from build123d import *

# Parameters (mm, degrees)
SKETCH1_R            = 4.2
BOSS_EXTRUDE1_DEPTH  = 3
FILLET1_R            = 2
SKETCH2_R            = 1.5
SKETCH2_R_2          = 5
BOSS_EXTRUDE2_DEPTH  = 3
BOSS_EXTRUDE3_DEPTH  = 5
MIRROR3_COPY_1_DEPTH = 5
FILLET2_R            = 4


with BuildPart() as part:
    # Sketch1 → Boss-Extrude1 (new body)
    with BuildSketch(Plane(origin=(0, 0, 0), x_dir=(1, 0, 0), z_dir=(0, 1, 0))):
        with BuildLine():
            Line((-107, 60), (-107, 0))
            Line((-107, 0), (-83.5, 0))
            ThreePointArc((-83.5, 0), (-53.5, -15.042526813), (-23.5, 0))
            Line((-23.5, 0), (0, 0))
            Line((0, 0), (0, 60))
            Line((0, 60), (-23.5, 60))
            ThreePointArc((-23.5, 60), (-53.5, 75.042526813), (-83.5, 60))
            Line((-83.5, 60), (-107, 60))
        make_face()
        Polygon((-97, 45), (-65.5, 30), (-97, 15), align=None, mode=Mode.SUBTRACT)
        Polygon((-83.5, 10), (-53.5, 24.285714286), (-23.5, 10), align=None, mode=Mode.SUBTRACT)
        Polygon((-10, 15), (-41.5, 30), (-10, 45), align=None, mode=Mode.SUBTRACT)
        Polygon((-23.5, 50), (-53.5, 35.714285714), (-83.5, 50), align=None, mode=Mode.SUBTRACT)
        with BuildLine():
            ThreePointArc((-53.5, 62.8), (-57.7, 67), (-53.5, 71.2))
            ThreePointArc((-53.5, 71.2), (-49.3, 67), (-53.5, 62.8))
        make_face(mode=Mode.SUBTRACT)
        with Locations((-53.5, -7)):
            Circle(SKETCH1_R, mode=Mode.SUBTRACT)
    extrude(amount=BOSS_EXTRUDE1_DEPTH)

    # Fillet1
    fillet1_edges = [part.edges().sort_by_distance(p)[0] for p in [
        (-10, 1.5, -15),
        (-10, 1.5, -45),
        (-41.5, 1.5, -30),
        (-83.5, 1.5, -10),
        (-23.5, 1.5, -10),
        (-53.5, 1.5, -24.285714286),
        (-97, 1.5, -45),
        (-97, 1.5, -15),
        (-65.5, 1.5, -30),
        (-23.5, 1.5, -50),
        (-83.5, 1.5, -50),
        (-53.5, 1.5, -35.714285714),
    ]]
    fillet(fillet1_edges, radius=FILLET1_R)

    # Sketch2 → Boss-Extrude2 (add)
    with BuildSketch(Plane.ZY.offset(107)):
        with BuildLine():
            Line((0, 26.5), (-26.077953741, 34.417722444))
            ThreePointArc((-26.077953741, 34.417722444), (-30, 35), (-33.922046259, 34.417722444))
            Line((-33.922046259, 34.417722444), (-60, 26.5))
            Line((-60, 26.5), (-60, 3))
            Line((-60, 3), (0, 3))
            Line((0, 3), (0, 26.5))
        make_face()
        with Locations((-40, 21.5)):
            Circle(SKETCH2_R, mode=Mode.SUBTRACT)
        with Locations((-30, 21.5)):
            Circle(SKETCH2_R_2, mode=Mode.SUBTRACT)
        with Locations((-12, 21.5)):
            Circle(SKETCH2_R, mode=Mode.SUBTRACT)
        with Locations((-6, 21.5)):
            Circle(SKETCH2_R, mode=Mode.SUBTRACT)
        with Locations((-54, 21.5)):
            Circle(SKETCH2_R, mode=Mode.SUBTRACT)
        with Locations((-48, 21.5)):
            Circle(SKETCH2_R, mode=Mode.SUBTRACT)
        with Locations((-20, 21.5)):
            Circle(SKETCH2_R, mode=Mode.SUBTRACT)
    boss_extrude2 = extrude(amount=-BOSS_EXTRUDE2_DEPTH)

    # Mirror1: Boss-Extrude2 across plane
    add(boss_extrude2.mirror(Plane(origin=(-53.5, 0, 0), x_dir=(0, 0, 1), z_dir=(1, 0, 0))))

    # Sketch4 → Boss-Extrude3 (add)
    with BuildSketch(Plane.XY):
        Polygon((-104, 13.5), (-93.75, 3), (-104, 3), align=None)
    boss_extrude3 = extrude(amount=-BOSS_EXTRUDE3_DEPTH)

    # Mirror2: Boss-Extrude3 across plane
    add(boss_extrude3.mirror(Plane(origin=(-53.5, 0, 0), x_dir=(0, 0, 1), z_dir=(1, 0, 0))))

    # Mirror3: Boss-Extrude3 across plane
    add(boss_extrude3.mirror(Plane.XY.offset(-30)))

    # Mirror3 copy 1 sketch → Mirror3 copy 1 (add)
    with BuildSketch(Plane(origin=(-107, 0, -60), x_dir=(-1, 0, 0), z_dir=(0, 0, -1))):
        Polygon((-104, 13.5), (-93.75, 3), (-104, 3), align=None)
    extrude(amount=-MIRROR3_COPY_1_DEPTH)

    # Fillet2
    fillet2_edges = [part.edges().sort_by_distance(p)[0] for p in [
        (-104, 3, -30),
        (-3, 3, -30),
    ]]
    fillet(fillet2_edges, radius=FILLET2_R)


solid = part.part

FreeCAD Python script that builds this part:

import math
import FreeCAD as App
import Part
import Sketcher
from FreeCAD import Vector


def edges_at(feature, points):
    """Names of the edges that pass closest to the given points."""
    edges = feature.Shape.Edges
    near = lambda p: min(range(len(edges)), key=lambda i: edges[i].distToShape(Part.Vertex(*p))[0])
    return sorted({f"Edge{near(p) + 1}" for p in points})


def add_polygon(sketch, points):
    """Adds a closed chain of lines whose ends are joined by coincident constraints."""
    first, n = sketch.GeometryCount, len(points)
    for a, b in zip(points, points[1:] + points[:1]):
        sketch.addGeometry(Part.LineSegment(App.Vector(*a, 0), App.Vector(*b, 0)), False)
    for i in range(n):
        sketch.addConstraint(Sketcher.Constraint("Coincident", first + i, 2, first + (i + 1) % n, 1))

doc = App.newDocument("Part")
body = doc.addObject("PartDesign::Body", "Body")

# Sketch on XZ plane
sketch1 = doc.addObject("Sketcher::SketchObject", "Sketch")
body.addObject(sketch1)
sketch1.AttachmentSupport = (doc.XZ_Plane, [""])
sketch1.MapMode = "FlatFace"
sketch1.addGeometry(Part.LineSegment(Vector(-107, -60, 0), Vector(-107, 0, 0)), False)  # 0
sketch1.addGeometry(Part.LineSegment(Vector(-107, 0, 0), Vector(-83.5, 0, 0)), False)  # 1
sketch1.addGeometry(Part.ArcOfCircle(Part.Circle(Vector(-53.5, -22.4, 0), Vector(0, 0, 1), 37.4), math.radians(37), math.radians(143)), False)  # 2
sketch1.addGeometry(Part.LineSegment(Vector(-23.5, 0, 0), Vector(0, 0, 0)), False)  # 3
sketch1.addGeometry(Part.LineSegment(Vector(0, 0, 0), Vector(0, -60, 0)), False)  # 4
sketch1.addGeometry(Part.LineSegment(Vector(0, -60, 0), Vector(-23.5, -60, 0)), False)  # 5
sketch1.addGeometry(Part.ArcOfCircle(Part.Circle(Vector(-53.5, -37.6, 0), Vector(0, 0, 1), 37.4), math.radians(-143), math.radians(-37)), False)  # 6
sketch1.addGeometry(Part.LineSegment(Vector(-83.5, -60, 0), Vector(-107, -60, 0)), False)  # 7
sketch1.addGeometry(Part.Circle(Vector(-53.5, 7, 0), Vector(0, 0, 1), 4.2), False)  # 8
add_polygon(sketch1, [(-23.5, -10), (-83.5, -10), (-53.5, -24.3)])  # lines 9-11
add_polygon(sketch1, [(-97, -15), (-97, -45), (-65.5, -30)])  # lines 12-14
add_polygon(sketch1, [(-83.5, -50), (-23.5, -50), (-53.5, -35.7)])  # lines 15-17
add_polygon(sketch1, [(-10, -45), (-10, -15), (-41.5, -30)])  # lines 18-20
sketch1.addGeometry(Part.Circle(Vector(-53.5, -67, 0), Vector(0, 0, 1), 4.2), False)  # 21
sketch1.addConstraint(Sketcher.Constraint("Coincident", 0, 2, 1, 1))
sketch1.addConstraint(Sketcher.Constraint("Coincident", 1, 2, 2, 2))
sketch1.addConstraint(Sketcher.Constraint("Coincident", 2, 1, 3, 1))
sketch1.addConstraint(Sketcher.Constraint("Coincident", 3, 2, 4, 1))
sketch1.addConstraint(Sketcher.Constraint("Coincident", 4, 2, 5, 1))
sketch1.addConstraint(Sketcher.Constraint("Coincident", 5, 2, 6, 2))
sketch1.addConstraint(Sketcher.Constraint("Coincident", 6, 1, 7, 1))
sketch1.addConstraint(Sketcher.Constraint("Coincident", 7, 2, 0, 1))
sketch1.addConstraint(Sketcher.Constraint("Vertical", 0))
sketch1.addConstraint(Sketcher.Constraint("Horizontal", 1))
sketch1.addConstraint(Sketcher.Constraint("Horizontal", 3))
sketch1.addConstraint(Sketcher.Constraint("Vertical", 4))
sketch1.addConstraint(Sketcher.Constraint("Horizontal", 5))
sketch1.addConstraint(Sketcher.Constraint("Horizontal", 7))
sketch1.addConstraint(Sketcher.Constraint("Horizontal", 9))
sketch1.addConstraint(Sketcher.Constraint("Vertical", 12))
sketch1.addConstraint(Sketcher.Constraint("Horizontal", 15))
sketch1.addConstraint(Sketcher.Constraint("Vertical", 18))
sketch1.addConstraint(Sketcher.Constraint("Coincident", 3, 2, -1, 1))
sketch1.addConstraint(Sketcher.Constraint("Equal", 2, 6))
sketch1.addConstraint(Sketcher.Constraint("Equal", 8, 21))
sketch1.addConstraint(Sketcher.Constraint("PointOnObject", 0, 2, -1))
sketch1.addConstraint(Sketcher.Constraint("Parallel", 11, 13))
sketch1.addConstraint(Sketcher.Constraint("Parallel", 10, 14))
sketch1.addConstraint(Sketcher.Constraint("Parallel", 14, 16))
sketch1.addConstraint(Sketcher.Constraint("Parallel", 13, 17))
sketch1.addConstraint(Sketcher.Constraint("Parallel", 17, 19))
sketch1.addConstraint(Sketcher.Constraint("Parallel", 16, 20))
sketch1.addConstraint(Sketcher.Constraint("Horizontal", 5, 2, 6, 1))
sketch1.addConstraint(Sketcher.Constraint("Horizontal", 14, 2, 18, 2))
sketch1.addConstraint(Sketcher.Constraint("Horizontal", 13, 2, 19, 2))
sketch1.addConstraint(Sketcher.Constraint("Horizontal", 12, 2, 20, 2))
sketch1.addConstraint(Sketcher.Constraint("Vertical", 2, 3, 6, 3))
sketch1.addConstraint(Sketcher.Constraint("Vertical", 6, 3, 8, 3))
sketch1.addConstraint(Sketcher.Constraint("Vertical", 8, 3, 21, 3))
sketch1.addConstraint(Sketcher.Constraint("Vertical", 2, 1, 5, 2))
sketch1.addConstraint(Sketcher.Constraint("Vertical", 6, 1, 9, 2))
sketch1.addConstraint(Sketcher.Constraint("Vertical", 21, 3, 10, 2))
sketch1.addConstraint(Sketcher.Constraint("Vertical", 11, 2, 15, 2))
sketch1.addConstraint(Sketcher.Constraint("Vertical", 10, 2, 16, 2))
sketch1.addConstraint(Sketcher.Constraint("Equal", 1, 3))
sketch1.addConstraint(Sketcher.Constraint("Equal", 15, 0))
sketch1.addConstraint(Sketcher.Constraint("Diameter", 8, 8.4))
sketch1.addConstraint(Sketcher.Constraint("DistanceX", 9, 2, 9, 1, 60.0))
sketch1.addConstraint(Sketcher.Constraint("DistanceY", 12, 2, 12, 1, 30.0))
sketch1.addConstraint(Sketcher.Constraint("DistanceX", 1, 1, 1, 2, 23.5))
sketch1.addConstraint(Sketcher.Constraint("DistanceY", -1, 1, 8, 3, 7.0))
sketch1.addConstraint(Sketcher.Constraint("DistanceY", 21, 3, -1, 1, 67.0))
sketch1.addConstraint(Sketcher.Constraint("DistanceY", 9, 2, -1, 1, 10.0))
sketch1.addConstraint(Sketcher.Constraint("DistanceX", 12, 2, -1, 1, 97.0))
sketch1.addConstraint(Sketcher.Constraint("DistanceY", 12, 2, -1, 1, 45.0))
sketch1.addConstraint(Sketcher.Constraint("DistanceY", 15, 2, -1, 1, 50.0))
sketch1.addConstraint(Sketcher.Constraint("DistanceX", 18, 2, -1, 1, 10.0))
sketch1.addConstraint(Sketcher.Constraint("DistanceX", 13, 2, 10, 2, 12.0))
sketch1.addConstraint(Sketcher.Constraint("Radius", 2, 37.43645))
pad1 = doc.addObject("PartDesign::Pad", "Pad")
body.addObject(pad1)
pad1.Profile = sketch1
pad1.Length = 3
pad1.Reversed = True
doc.recompute()

fillet = doc.addObject("PartDesign::Fillet", "Fillet")
body.addObject(fillet)
fillet.Base = (pad1, edges_at(pad1, [
    (-10, 1.5, -15),
    (-10, 1.5, -45),
    (-41.5, 1.5, -30),
    (-83.5, 1.5, -10),
    (-23.5, 1.5, -10),
    (-53.5, 1.5, -24.286),
    (-97, 1.5, -45),
    (-97, 1.5, -15),
    (-65.5, 1.5, -30),
    (-23.5, 1.5, -50),
    (-83.5, 1.5, -50),
    (-53.5, 1.5, -35.714),
]))
fillet.Radius = 2

# Sketch on YZ plane
sketch2 = doc.addObject("Sketcher::SketchObject", "Sketch001")
body.addObject(sketch2)
sketch2.AttachmentSupport = (doc.YZ_Plane, [""])
sketch2.MapMode = "FlatFace"
sketch2.AttachmentOffset = App.Placement(Vector(0, 0, -107), App.Rotation())
sketch2.addGeometry(Part.LineSegment(Vector(26.5, 0, 0), Vector(34.4, -26.1, 0)), False)
sketch2.addGeometry(Part.ArcOfCircle(Part.Circle(Vector(21.5, -30, 0), Vector(0, 0, 1), 13.5), math.radians(-17), math.radians(17)), False)
sketch2.addGeometry(Part.LineSegment(Vector(34.4, -33.9, 0), Vector(26.5, -60, 0)), False)
sketch2.addGeometry(Part.LineSegment(Vector(26.5, -60, 0), Vector(3, -60, 0)), False)
sketch2.addGeometry(Part.LineSegment(Vector(3, -60, 0), Vector(3, 0, 0)), False)
sketch2.addGeometry(Part.LineSegment(Vector(3, 0, 0), Vector(26.5, 0, 0)), False)
sketch2.addGeometry(Part.Circle(Vector(21.5, -54, 0), Vector(0, 0, 1), 1.5), False)
sketch2.addGeometry(Part.Circle(Vector(21.5, -48, 0), Vector(0, 0, 1), 1.5), False)
sketch2.addGeometry(Part.Circle(Vector(21.5, -40, 0), Vector(0, 0, 1), 1.5), False)
sketch2.addGeometry(Part.Circle(Vector(21.5, -30, 0), Vector(0, 0, 1), 5), False)
sketch2.addGeometry(Part.Circle(Vector(21.5, -20, 0), Vector(0, 0, 1), 1.5), False)
sketch2.addGeometry(Part.Circle(Vector(21.5, -12, 0), Vector(0, 0, 1), 1.5), False)
sketch2.addGeometry(Part.Circle(Vector(21.5, -6, 0), Vector(0, 0, 1), 1.5), False)
sketch2.addConstraint(Sketcher.Constraint("Tangent", 0, 2, 1, 2))
sketch2.addConstraint(Sketcher.Constraint("Tangent", 1, 1, 2, 1))
sketch2.addConstraint(Sketcher.Constraint("Coincident", 2, 2, 3, 1))
sketch2.addConstraint(Sketcher.Constraint("Coincident", 3, 2, 4, 1))
sketch2.addConstraint(Sketcher.Constraint("Coincident", 4, 2, 5, 1))
sketch2.addConstraint(Sketcher.Constraint("Coincident", 5, 2, 0, 1))
sketch2.addConstraint(Sketcher.Constraint("Horizontal", 3))
sketch2.addConstraint(Sketcher.Constraint("Vertical", 4))
sketch2.addConstraint(Sketcher.Constraint("Horizontal", 5))
sketch2.addConstraint(Sketcher.Constraint("Coincident", 9, 3, 1, 3))
sketch2.addConstraint(Sketcher.Constraint("Equal", 6, 7))
sketch2.addConstraint(Sketcher.Constraint("Equal", 7, 8))
sketch2.addConstraint(Sketcher.Constraint("Equal", 8, 10))
sketch2.addConstraint(Sketcher.Constraint("Equal", 10, 11))
sketch2.addConstraint(Sketcher.Constraint("Equal", 11, 12))
sketch2.addConstraint(Sketcher.Constraint("PointOnObject", 4, 2, -1))
sketch2.addConstraint(Sketcher.Constraint("Vertical", 1, 3, 6, 3))
sketch2.addConstraint(Sketcher.Constraint("Vertical", 6, 3, 7, 3))
sketch2.addConstraint(Sketcher.Constraint("Vertical", 7, 3, 8, 3))
sketch2.addConstraint(Sketcher.Constraint("Vertical", 9, 3, 10, 3))
sketch2.addConstraint(Sketcher.Constraint("Vertical", 10, 3, 11, 3))
sketch2.addConstraint(Sketcher.Constraint("Vertical", 11, 3, 12, 3))
sketch2.addConstraint(Sketcher.Constraint("Vertical", 0, 2, 1, 1))
sketch2.addConstraint(Sketcher.Constraint("Vertical", 2, 2, 5, 2))
sketch2.addConstraint(Sketcher.Constraint("Diameter", 6, 3.0))
sketch2.addConstraint(Sketcher.Constraint("Diameter", 9, 10.0))
sketch2.addConstraint(Sketcher.Constraint("Radius", 1, 13.5))
sketch2.addConstraint(Sketcher.Constraint("DistanceY", 4, 1, 4, 2, 60.0))
sketch2.addConstraint(Sketcher.Constraint("DistanceX", 3, 2, 3, 1, 23.5))
sketch2.addConstraint(Sketcher.Constraint("DistanceY", 6, 3, -1, 1, 54.0))
sketch2.addConstraint(Sketcher.Constraint("DistanceY", 7, 3, -1, 1, 48.0))
sketch2.addConstraint(Sketcher.Constraint("DistanceY", 8, 3, -1, 1, 40.0))
sketch2.addConstraint(Sketcher.Constraint("DistanceY", 10, 3, -1, 1, 20.0))
sketch2.addConstraint(Sketcher.Constraint("DistanceY", 11, 3, -1, 1, 12.0))
sketch2.addConstraint(Sketcher.Constraint("DistanceY", 12, 3, -1, 1, 6.0))
sketch2.addConstraint(Sketcher.Constraint("DistanceX", -1, 1, 3, 2, 3.0))
sketch2.addConstraint(Sketcher.Constraint("DistanceX", 6, 3, 2, 2, 5.0))
pad2 = doc.addObject("PartDesign::Pad", "Pad001")
body.addObject(pad2)
pad2.Profile = sketch2
pad2.Length = 3
doc.recompute()

datumplane = doc.addObject("PartDesign::Plane", "DatumPlane")
body.addObject(datumplane)
datumplane.AttachmentSupport = (doc.YZ_Plane, [""])
datumplane.MapMode = "FlatFace"
datumplane.AttachmentOffset = App.Placement(Vector(0, 0, -53.5), App.Rotation())
mirrored = doc.addObject("PartDesign::Mirrored", "Mirrored")
body.addObject(mirrored)
mirrored.Originals = [pad2]
mirrored.MirrorPlane = (datumplane, [""])
body.Tip = mirrored

# Sketch on XY plane
sketch3 = doc.addObject("Sketcher::SketchObject", "Sketch002")
body.addObject(sketch3)
sketch3.AttachmentSupport = (doc.XY_Plane, [""])
sketch3.MapMode = "FlatFace"
add_polygon(sketch3, [(-94, 3), (-104, 14), (-104, 3)])  # lines 0-2
sketch3.addConstraint(Sketcher.Constraint("Vertical", 1))
sketch3.addConstraint(Sketcher.Constraint("Horizontal", 2))
sketch3.addConstraint(Sketcher.Constraint("DistanceY", 1, 2, 1, 1, 10.5))
sketch3.addConstraint(Sketcher.Constraint("DistanceX", 0, 2, -1, 1, 104.0))
sketch3.addConstraint(Sketcher.Constraint("DistanceY", -1, 1, 1, 2, 3.0))
sketch3.addConstraint(Sketcher.Constraint("DistanceX", 2, 1, 2, 2, 10.25))
pad3 = doc.addObject("PartDesign::Pad", "Pad002")
body.addObject(pad3)
pad3.Profile = sketch3
pad3.Length = 5
pad3.Reversed = True
doc.recompute()

datumplane2 = doc.addObject("PartDesign::Plane", "DatumPlane001")
body.addObject(datumplane2)
datumplane2.AttachmentSupport = (doc.YZ_Plane, [""])
datumplane2.MapMode = "FlatFace"
datumplane2.AttachmentOffset = App.Placement(Vector(0, 0, -53.5), App.Rotation())
mirrored2 = doc.addObject("PartDesign::Mirrored", "Mirrored001")
body.addObject(mirrored2)
mirrored2.Originals = [pad3]
mirrored2.MirrorPlane = (datumplane2, [""])
body.Tip = mirrored2
doc.recompute()

datumplane3 = doc.addObject("PartDesign::Plane", "DatumPlane002")
body.addObject(datumplane3)
datumplane3.AttachmentSupport = (doc.XY_Plane, [""])
datumplane3.MapMode = "FlatFace"
datumplane3.AttachmentOffset = App.Placement(Vector(0, 0, -30), App.Rotation())
mirrored3 = doc.addObject("PartDesign::Mirrored", "Mirrored002")
body.addObject(mirrored3)
mirrored3.Originals = [pad3]
mirrored3.MirrorPlane = (datumplane3, [""])
body.Tip = mirrored3

# Sketch on XY plane
sketch4 = doc.addObject("Sketcher::SketchObject", "Sketch003")
body.addObject(sketch4)
sketch4.AttachmentSupport = (doc.XY_Plane, [""])
sketch4.MapMode = "FlatFace"
sketch4.AttachmentOffset = App.Placement(Vector(0, 0, -60), App.Rotation())
add_polygon(sketch4, [(-13, 3), (-3, 14), (-3, 3)])  # lines 0-2
sketch4.addConstraint(Sketcher.Constraint("Vertical", 1))
sketch4.addConstraint(Sketcher.Constraint("Horizontal", 2))
sketch4.addConstraint(Sketcher.Constraint("DistanceY", 1, 2, 1, 1, 10.5))
sketch4.addConstraint(Sketcher.Constraint("DistanceX", 0, 2, -1, 1, 3.0))
sketch4.addConstraint(Sketcher.Constraint("DistanceY", -1, 1, 1, 2, 3.0))
sketch4.addConstraint(Sketcher.Constraint("DistanceX", 2, 2, 2, 1, 10.25))
pad4 = doc.addObject("PartDesign::Pad", "Pad003")
body.addObject(pad4)
pad4.Profile = sketch4
pad4.Length = 5
doc.recompute()

fillet2 = doc.addObject("PartDesign::Fillet", "Fillet001")
body.addObject(fillet2)
fillet2.Base = (pad4, edges_at(pad4, [(-104, 3, -30), (-3, 3, -30)]))
fillet2.Radius = 4

doc.recompute()
